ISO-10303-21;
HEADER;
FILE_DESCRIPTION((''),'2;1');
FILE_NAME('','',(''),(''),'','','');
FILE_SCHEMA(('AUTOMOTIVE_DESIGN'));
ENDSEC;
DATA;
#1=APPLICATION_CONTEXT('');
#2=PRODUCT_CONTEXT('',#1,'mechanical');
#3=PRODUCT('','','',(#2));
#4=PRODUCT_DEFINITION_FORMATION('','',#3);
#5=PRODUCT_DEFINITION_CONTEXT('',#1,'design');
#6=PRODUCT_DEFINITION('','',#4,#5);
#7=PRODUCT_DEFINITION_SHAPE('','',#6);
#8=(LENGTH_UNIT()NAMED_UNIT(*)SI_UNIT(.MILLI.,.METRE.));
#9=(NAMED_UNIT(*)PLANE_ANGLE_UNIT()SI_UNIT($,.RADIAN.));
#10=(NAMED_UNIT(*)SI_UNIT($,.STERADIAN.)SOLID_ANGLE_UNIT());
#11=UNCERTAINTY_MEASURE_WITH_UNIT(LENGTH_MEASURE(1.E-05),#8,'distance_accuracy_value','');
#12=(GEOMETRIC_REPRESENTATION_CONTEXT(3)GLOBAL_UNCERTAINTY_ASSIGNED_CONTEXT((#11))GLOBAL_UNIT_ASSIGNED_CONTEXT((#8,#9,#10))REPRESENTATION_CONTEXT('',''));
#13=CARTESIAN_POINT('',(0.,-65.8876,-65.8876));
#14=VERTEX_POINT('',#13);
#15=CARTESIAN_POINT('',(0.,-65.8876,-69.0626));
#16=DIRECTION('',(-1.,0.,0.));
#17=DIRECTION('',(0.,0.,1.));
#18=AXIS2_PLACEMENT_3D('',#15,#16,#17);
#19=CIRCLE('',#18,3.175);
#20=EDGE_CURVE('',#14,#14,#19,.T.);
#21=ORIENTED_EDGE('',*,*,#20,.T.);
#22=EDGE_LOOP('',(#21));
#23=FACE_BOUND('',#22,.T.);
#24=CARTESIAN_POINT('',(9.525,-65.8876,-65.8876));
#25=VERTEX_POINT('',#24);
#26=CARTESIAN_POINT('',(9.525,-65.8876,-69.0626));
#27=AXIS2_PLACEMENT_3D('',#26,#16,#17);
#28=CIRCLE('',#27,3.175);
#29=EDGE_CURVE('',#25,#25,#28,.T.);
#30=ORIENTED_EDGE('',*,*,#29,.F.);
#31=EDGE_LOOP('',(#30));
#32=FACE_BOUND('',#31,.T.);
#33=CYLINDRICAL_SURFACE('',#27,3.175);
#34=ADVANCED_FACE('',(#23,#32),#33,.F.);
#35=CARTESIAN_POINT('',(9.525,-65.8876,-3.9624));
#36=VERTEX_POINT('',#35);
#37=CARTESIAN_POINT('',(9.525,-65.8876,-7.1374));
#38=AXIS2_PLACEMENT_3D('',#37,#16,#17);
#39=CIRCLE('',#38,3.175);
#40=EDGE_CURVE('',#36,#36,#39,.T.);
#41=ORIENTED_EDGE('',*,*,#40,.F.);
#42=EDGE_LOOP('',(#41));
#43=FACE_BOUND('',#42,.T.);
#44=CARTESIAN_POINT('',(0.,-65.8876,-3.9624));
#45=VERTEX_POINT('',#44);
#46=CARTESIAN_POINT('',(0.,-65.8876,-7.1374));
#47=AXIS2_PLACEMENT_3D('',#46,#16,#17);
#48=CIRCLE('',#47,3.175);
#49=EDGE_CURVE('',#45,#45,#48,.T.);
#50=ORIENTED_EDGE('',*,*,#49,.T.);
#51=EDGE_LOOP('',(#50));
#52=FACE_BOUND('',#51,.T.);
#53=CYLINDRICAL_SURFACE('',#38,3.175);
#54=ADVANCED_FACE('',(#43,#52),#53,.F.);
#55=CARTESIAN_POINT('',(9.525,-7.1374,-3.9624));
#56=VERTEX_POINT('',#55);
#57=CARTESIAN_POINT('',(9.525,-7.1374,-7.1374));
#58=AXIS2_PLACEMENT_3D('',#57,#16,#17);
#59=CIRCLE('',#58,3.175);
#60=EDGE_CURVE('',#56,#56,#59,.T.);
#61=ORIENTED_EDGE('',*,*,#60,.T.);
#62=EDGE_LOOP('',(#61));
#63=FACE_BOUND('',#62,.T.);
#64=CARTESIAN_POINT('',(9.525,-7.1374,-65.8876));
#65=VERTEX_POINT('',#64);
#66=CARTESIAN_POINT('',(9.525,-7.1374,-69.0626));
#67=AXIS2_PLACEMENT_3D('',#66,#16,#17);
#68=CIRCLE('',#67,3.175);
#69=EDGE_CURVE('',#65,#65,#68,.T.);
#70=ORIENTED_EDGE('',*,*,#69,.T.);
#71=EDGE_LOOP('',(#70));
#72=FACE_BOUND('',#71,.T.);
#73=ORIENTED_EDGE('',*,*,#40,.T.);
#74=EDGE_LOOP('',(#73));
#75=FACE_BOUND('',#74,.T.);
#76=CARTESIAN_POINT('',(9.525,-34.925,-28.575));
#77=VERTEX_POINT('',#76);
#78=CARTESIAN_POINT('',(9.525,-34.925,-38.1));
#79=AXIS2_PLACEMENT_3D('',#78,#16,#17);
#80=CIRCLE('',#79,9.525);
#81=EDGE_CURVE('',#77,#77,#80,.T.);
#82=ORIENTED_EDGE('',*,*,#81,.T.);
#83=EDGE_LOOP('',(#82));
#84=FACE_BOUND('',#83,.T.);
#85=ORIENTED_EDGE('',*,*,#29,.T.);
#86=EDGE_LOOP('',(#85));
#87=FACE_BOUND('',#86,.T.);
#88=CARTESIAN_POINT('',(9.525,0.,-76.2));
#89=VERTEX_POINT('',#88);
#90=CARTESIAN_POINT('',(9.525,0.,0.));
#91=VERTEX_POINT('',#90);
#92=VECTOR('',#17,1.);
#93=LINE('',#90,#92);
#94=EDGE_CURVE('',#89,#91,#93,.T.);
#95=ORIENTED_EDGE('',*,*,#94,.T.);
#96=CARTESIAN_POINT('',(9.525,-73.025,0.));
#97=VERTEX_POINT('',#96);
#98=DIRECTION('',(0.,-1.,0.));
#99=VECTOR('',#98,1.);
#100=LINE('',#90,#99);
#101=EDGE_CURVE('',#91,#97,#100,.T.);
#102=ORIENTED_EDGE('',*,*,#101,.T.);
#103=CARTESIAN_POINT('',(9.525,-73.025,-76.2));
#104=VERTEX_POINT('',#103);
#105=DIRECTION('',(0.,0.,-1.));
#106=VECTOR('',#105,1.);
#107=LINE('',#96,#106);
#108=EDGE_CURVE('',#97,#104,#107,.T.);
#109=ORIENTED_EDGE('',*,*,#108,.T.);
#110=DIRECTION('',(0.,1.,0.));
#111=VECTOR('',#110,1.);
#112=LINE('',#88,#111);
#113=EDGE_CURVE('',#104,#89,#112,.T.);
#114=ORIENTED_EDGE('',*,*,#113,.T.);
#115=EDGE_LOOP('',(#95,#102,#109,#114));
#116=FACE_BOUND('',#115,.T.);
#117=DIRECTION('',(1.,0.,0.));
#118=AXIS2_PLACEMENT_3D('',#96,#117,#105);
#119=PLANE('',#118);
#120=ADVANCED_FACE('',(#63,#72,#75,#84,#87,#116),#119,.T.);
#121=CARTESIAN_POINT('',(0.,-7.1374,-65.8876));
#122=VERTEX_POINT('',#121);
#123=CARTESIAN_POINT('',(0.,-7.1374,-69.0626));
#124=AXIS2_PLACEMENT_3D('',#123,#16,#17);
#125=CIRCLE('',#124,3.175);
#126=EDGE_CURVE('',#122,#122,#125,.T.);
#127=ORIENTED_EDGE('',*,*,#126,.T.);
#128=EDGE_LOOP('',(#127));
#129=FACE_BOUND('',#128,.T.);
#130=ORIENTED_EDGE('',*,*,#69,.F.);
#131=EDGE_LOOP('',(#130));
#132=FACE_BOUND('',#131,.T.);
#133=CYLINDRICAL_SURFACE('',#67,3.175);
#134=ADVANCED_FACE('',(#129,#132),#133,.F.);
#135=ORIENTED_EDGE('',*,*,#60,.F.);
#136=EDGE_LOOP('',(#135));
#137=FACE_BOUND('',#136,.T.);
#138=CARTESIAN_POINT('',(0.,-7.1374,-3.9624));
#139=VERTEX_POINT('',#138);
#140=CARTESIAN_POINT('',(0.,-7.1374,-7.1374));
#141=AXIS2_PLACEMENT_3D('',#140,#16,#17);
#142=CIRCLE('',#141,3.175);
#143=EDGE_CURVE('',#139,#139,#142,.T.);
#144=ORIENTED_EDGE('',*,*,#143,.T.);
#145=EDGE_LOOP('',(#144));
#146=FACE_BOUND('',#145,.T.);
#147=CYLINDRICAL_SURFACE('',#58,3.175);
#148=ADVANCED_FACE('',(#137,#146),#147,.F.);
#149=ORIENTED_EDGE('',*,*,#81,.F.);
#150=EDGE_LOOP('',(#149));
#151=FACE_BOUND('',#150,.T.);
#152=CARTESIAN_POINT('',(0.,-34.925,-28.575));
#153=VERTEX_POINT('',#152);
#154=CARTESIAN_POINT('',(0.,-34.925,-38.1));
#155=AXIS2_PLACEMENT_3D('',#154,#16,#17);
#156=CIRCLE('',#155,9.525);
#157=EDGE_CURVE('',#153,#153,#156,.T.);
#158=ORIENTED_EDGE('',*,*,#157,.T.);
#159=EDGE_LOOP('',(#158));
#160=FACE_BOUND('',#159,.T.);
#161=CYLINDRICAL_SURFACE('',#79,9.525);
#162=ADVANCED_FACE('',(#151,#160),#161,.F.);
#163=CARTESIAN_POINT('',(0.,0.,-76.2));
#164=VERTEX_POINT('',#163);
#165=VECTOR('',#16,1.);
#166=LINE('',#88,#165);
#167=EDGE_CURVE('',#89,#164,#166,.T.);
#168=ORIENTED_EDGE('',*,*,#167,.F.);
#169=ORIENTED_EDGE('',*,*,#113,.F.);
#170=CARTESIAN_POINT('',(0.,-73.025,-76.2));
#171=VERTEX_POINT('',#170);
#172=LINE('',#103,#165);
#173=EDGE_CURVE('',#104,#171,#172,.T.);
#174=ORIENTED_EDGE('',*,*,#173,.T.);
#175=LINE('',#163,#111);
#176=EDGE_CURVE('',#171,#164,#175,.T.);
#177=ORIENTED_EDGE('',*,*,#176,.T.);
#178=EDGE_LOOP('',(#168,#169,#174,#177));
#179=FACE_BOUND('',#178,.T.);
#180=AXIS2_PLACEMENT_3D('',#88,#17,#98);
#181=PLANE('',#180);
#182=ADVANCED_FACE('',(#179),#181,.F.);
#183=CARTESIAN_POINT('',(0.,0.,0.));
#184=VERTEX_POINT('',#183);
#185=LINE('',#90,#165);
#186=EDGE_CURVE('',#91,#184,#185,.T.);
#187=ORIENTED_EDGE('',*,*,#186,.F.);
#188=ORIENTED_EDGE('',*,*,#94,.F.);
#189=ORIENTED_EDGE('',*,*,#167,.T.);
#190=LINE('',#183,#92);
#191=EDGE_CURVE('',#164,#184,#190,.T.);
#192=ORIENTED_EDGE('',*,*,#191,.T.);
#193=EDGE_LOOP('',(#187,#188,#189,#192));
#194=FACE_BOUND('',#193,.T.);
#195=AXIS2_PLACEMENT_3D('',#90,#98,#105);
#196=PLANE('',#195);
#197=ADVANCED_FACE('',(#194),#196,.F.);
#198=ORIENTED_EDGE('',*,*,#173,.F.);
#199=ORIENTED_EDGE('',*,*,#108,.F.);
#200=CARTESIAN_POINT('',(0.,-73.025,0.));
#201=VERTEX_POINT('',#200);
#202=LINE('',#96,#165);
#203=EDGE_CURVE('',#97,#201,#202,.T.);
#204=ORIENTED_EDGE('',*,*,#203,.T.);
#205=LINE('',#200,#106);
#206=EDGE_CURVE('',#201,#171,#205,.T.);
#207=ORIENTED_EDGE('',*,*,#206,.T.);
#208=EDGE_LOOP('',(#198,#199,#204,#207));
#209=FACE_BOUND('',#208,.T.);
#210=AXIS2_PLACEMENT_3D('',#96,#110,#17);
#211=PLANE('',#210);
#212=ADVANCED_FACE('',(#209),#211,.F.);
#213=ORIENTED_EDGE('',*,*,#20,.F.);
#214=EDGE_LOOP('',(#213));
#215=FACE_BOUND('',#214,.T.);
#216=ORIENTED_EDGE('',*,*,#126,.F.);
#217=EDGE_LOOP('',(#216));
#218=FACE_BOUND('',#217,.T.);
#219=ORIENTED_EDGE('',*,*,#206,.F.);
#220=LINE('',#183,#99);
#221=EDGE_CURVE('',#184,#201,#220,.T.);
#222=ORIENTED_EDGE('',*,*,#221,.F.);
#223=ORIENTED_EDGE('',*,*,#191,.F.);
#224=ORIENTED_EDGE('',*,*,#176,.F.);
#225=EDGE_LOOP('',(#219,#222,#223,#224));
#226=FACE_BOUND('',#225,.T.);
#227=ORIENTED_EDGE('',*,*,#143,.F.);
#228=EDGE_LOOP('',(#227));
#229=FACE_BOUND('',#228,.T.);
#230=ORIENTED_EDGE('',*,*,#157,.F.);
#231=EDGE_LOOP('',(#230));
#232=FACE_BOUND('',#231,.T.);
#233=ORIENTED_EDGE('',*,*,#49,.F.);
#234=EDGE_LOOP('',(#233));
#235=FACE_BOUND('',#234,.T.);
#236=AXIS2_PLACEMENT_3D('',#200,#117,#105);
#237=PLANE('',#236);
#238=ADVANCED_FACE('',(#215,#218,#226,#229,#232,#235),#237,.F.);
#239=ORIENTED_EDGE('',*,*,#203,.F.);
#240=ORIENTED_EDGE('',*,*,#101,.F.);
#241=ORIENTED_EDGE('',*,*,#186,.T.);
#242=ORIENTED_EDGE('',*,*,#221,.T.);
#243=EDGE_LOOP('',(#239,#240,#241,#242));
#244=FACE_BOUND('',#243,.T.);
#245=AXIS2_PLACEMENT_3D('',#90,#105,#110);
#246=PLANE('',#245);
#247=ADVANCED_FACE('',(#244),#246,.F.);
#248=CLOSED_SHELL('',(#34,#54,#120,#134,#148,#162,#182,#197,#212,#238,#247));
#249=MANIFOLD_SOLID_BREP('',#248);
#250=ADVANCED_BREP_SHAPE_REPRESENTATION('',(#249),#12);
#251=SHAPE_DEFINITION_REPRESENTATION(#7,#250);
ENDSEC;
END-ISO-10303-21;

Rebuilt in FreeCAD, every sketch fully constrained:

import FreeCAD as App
import Part
import Sketcher
from FreeCAD import Vector
Q = App.Units.Quantity


def add_polygon(sketch, points):
    """Adds a closed chain of lines whose ends are joined by coincident constraints."""
    first, n = sketch.GeometryCount, len(points)
    for a, b in zip(points, points[1:] + points[:1]):
        sketch.addGeometry(Part.LineSegment(App.Vector(*a, 0), App.Vector(*b, 0)), False)
    for i in range(n):
        sketch.addConstraint(Sketcher.Constraint("Coincident", first + i, 2, first + (i + 1) % n, 1))

doc = App.newDocument("Part")
params = doc.addObject("Spreadsheet::Sheet", "Params")
for row, (alias, value) in enumerate([
    ("sketch1_height", "3 in"),
    ("sketch1_width", "2.875 in"),
    ("pad1_length", "0.375 in"),
    ("sketch2_diameter", "0.25 in"),
    ("sketch2_diameter2", "0.75 in"),
], start=1):
    params.set(f"A{row}", alias)
    params.set(f"B{row}", "=" + value)
    params.setAlias(f"B{row}", alias)

body = doc.addObject("PartDesign::Body", "Body")

# Sketch on YZ plane
sketch1 = body.newObject("Sketcher::SketchObject", "Sketch")
sketch1.AttachmentSupport = (doc.getObject("YZ_Plane"), [""])
sketch1.MapMode = "FlatFace"
add_polygon(sketch1, [(0, 0), (-73.025, 0), (-73.025, -76.2), (0, -76.2)])  # lines 0-3
sketch1.addConstraint([
    Sketcher.Constraint("Horizontal", 0),
    Sketcher.Constraint("Vertical", 1),
    Sketcher.Constraint("Horizontal", 2),
    Sketcher.Constraint("Vertical", 3),
    Sketcher.Constraint("Coincident", 3, 2, -1, 1),
    Sketcher.Constraint("DistanceY", 1, 2, 1, 1, Q("3 in")),
    Sketcher.Constraint("DistanceX", 0, 2, 0, 1, Q("2.875 in")),
])
sketch1.setExpression("Constraints[9]", "Params.sketch1_height")
sketch1.setExpression("Constraints[10]", "Params.sketch1_width")
pad1 = body.newObject("PartDesign::Pad", "Pad")
pad1.Profile = sketch1
pad1.setExpression("Length", "Params.pad1_length")

# Sketch on YZ plane
sketch2 = body.newObject("Sketcher::SketchObject", "Sketch001")
sketch2.AttachmentSupport = (doc.getObject("YZ_Plane"), [""])
sketch2.MapMode = "FlatFace"
sketch2.addGeometry([
    Part.Circle(Vector(-7.1374, -7.1374, 0), Vector(0, 0, 1), 3.175),  # 0
    Part.Circle(Vector(-7.1374, -69.0626, 0), Vector(0, 0, 1), 3.175),  # 1
    Part.Circle(Vector(-65.8876, -69.0626, 0), Vector(0, 0, 1), 3.175),  # 2
    Part.Circle(Vector(-65.8876, -7.1374, 0), Vector(0, 0, 1), 3.175),  # 3
    Part.Circle(Vector(-34.925, -38.1, 0), Vector(0, 0, 1), 9.525),  # 4
], False)
sketch2.addConstraint([
    Sketcher.Constraint("Equal", 0, 1),
    Sketcher.Constraint("Equal", 1, 2),
    Sketcher.Constraint("Equal", 2, 3),
    Sketcher.Constraint("Horizontal", 1, 3, 2, 3),
    Sketcher.Constraint("Horizontal", 0, 3, 3, 3),
    Sketcher.Constraint("Vertical", 0, 3, 1, 3),
    Sketcher.Constraint("Vertical", 2, 3, 3, 3),
    Sketcher.Constraint("Diameter", 0, Q("0.25 in")),
    Sketcher.Constraint("Diameter", 4, Q("0.75 in")),
    Sketcher.Constraint("DistanceY", 4, 3, -1, 1, Q("1.5 in")),
    Sketcher.Constraint("DistanceX", 0, 3, -1, 1, Q("0.281 in")),
    Sketcher.Constraint("DistanceY", 0, 3, -1, 1, Q("0.281 in")),
    Sketcher.Constraint("DistanceY", 1, 3, -1, 1, Q("2.719 in")),
    Sketcher.Constraint("DistanceX", 2, 3, -1, 1, Q("2.594 in")),
    Sketcher.Constraint("DistanceX", 4, 3, -1, 1, Q("1.375 in")),
])
sketch2.setExpression("Constraints[7]", "Params.sketch2_diameter")
sketch2.setExpression("Constraints[8]", "Params.sketch2_diameter2")
pocket1 = body.newObject("PartDesign::Pocket", "Pocket")
pocket1.Profile = sketch2
pocket1.Type = "ThroughAll"
pocket1.Reversed = True

doc.recompute()
